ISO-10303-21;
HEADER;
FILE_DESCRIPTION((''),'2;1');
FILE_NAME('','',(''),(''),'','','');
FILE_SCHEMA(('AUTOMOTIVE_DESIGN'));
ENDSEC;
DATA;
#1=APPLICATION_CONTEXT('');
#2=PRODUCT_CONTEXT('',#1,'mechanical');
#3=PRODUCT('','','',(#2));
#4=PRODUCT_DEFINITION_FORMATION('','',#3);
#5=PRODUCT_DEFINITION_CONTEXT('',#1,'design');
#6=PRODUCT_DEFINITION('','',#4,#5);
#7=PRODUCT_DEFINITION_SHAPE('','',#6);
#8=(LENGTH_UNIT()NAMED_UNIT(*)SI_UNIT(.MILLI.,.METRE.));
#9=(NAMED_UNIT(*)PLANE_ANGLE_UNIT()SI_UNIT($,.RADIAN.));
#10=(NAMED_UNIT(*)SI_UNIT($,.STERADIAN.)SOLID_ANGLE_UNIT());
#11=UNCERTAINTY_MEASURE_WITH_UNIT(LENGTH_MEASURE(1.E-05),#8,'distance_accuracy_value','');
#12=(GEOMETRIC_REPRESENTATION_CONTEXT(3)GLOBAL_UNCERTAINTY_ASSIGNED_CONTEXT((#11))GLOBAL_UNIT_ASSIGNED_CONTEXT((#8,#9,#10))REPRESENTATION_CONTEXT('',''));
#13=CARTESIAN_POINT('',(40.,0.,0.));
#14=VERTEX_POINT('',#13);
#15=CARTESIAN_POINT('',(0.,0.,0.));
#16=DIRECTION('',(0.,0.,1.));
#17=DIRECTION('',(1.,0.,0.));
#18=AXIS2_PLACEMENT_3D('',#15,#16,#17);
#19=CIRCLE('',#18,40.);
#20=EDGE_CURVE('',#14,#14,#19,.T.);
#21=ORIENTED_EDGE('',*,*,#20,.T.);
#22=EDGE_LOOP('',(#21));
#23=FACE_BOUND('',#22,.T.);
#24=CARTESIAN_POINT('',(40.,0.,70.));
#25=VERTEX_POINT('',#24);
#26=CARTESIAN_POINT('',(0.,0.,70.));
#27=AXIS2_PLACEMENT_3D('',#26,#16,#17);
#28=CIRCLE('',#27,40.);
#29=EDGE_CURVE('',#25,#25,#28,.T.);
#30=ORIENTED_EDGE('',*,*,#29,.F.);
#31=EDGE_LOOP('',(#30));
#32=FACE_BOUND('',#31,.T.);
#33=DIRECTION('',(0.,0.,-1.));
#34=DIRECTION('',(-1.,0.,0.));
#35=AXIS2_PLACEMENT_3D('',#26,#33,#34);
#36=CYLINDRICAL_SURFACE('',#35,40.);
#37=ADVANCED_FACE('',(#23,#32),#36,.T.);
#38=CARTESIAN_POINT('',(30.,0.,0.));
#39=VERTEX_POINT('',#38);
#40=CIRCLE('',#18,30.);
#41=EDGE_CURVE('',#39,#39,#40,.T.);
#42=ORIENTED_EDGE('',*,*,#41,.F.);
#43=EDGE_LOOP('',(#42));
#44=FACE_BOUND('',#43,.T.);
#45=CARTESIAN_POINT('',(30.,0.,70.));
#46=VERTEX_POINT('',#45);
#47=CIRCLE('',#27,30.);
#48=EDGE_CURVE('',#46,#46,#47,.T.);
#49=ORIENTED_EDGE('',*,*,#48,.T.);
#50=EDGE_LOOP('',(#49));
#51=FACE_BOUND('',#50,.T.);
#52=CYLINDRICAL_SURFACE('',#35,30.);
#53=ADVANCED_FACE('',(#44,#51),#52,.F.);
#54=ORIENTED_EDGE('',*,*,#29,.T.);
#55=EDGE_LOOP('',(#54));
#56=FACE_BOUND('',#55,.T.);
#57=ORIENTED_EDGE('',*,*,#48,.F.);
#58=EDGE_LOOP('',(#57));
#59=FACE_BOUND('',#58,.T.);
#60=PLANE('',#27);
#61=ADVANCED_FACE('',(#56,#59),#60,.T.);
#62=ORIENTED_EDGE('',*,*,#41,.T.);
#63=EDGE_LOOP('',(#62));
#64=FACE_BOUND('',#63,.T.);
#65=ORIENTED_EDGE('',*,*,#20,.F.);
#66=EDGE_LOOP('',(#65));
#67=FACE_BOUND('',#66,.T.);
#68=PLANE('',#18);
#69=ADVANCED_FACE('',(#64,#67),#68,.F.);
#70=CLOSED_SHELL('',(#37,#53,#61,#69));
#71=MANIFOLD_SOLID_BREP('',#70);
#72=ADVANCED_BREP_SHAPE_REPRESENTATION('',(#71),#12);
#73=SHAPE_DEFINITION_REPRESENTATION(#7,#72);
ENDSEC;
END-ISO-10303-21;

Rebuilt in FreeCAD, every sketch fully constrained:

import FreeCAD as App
import Part
import Sketcher

doc = App.newDocument("Part")
body = doc.addObject("PartDesign::Body", "Body")

sketch1 = doc.addObject("Sketcher::SketchObject", "Sketch")
body.addObject(sketch1)
sketch1.AttachmentSupport = (doc.XY_Plane, [""])
sketch1.MapMode = "FlatFace"
sketch1.addGeometry(Part.Circle(App.Vector(0, 0, 0), App.Vector(0, 0, 1), 40), False)
sketch1.addGeometry(Part.Circle(App.Vector(0, 0, 0), App.Vector(0, 0, 1), 30), False)
sketch1.addConstraint(Sketcher.Constraint("Coincident", 0, 3, -1, 1))
sketch1.addConstraint(Sketcher.Constraint("Coincident", 1, 3, -1, 1))
sketch1.addConstraint(Sketcher.Constraint("Diameter", 0, 80.0))
sketch1.addConstraint(Sketcher.Constraint("Diameter", 1, 60.0))
pad1 = doc.addObject("PartDesign::Pad", "Pad")
body.addObject(pad1)
pad1.Profile = sketch1
pad1.Length = 70

doc.recompute()
